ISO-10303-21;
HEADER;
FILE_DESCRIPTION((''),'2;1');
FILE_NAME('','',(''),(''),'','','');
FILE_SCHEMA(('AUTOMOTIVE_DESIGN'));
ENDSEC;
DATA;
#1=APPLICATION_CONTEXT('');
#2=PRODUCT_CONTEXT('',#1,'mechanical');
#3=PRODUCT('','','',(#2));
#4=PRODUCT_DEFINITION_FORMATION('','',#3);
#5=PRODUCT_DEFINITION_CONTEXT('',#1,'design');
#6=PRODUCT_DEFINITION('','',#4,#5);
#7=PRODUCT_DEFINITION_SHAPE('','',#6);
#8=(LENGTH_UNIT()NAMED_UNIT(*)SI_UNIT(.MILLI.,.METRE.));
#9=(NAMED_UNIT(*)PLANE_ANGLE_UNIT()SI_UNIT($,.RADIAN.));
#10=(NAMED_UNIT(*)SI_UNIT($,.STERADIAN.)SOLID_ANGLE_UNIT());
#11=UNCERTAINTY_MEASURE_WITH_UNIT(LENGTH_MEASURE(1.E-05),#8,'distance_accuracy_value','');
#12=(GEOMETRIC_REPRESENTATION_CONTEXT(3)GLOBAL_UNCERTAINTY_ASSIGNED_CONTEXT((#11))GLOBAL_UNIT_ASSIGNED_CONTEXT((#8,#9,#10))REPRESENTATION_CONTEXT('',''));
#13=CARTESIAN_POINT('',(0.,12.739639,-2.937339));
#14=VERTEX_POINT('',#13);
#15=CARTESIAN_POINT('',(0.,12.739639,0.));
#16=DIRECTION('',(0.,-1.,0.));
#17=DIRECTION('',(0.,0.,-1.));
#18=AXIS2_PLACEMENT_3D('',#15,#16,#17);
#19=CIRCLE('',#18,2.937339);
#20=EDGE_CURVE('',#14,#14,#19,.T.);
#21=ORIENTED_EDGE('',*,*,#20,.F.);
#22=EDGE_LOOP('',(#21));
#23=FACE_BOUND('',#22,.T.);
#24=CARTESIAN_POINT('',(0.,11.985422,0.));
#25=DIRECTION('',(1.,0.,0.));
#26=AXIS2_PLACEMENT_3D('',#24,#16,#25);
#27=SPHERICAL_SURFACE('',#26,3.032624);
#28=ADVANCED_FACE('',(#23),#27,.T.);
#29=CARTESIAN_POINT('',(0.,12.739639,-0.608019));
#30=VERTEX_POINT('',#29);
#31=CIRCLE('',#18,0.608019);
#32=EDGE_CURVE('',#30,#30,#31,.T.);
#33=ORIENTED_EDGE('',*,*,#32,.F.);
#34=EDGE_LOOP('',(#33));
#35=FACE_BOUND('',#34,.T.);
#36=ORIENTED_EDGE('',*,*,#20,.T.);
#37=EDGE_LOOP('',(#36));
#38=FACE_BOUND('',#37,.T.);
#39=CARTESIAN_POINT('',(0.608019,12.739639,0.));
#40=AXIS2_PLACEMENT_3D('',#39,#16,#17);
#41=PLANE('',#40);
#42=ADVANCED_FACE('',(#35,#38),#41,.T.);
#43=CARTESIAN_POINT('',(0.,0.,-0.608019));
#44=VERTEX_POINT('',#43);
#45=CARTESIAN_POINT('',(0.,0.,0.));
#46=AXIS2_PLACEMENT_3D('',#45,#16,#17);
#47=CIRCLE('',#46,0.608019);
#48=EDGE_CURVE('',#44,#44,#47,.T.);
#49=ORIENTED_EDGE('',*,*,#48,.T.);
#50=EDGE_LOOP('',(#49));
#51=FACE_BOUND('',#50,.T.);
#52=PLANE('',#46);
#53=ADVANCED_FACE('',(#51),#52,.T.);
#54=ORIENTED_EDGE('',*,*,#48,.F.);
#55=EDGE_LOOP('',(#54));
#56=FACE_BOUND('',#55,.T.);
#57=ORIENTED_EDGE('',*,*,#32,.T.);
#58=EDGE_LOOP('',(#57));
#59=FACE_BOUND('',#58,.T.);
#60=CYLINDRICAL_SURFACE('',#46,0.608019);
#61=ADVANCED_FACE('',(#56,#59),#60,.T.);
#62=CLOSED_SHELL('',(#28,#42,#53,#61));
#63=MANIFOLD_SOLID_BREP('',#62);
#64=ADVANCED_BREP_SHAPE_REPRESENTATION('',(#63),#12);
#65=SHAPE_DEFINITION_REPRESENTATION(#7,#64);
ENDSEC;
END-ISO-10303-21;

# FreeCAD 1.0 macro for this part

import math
import FreeCAD as App
import Part
import Sketcher
Q = App.Units.Quantity

doc = App.newDocument("Part")
body = doc.addObject("PartDesign::Body", "Body")

# Sketch on XY plane
sketch1 = body.newObject("Sketcher::SketchObject", "Sketch")
sketch1.AttachmentSupport = (doc.getObject("XY_Plane"), [""])
sketch1.MapMode = "FlatFace"
sketch1.addGeometry([
    Part.LineSegment(App.Vector(0, 0, 0), App.Vector(0.6, 0, 0)),  # 0
    Part.LineSegment(App.Vector(0.6, 0, 0), App.Vector(0.6, 12.7, 0)),  # 1
    Part.LineSegment(App.Vector(0.6, 12.7, 0), App.Vector(2.9, 12.7, 0)),  # 2
    Part.ArcOfCircle(Part.Circle(App.Vector(0, 12, 0), App.Vector(0, 0, 1), 3), math.radians(14), math.radians(90)),  # 3
    Part.LineSegment(App.Vector(0, 15, 0), App.Vector(0, 0, 0)),  # 4
], False)
sketch1.addConstraint([
    Sketcher.Constraint("Coincident", 0, 2, 1, 1),
    Sketcher.Constraint("Coincident", 1, 2, 2, 1),
    Sketcher.Constraint("Coincident", 2, 2, 3, 1),
    Sketcher.Constraint("Coincident", 3, 2, 4, 1),
    Sketcher.Constraint("Coincident", 4, 2, 0, 1),
    Sketcher.Constraint("Horizontal", 0),
    Sketcher.Constraint("Vertical", 1),
    Sketcher.Constraint("Horizontal", 2),
    Sketcher.Constraint("Vertical", 4),
    Sketcher.Constraint("Coincident", 4, 2, -1, 1),
    Sketcher.Constraint("PointOnObject", 3, 3, -2),
    Sketcher.Constraint("Radius", 3, Q("3.032624 mm")),
    Sketcher.Constraint("DistanceX", 0, 1, 0, 2, Q("0.608019 mm")),
    Sketcher.Constraint("DistanceX", 2, 1, 2, 2, Q("2.32932 mm")),
    Sketcher.Constraint("DistanceY", 1, 1, 1, 2, Q("12.739639 mm")),
])
revolution = body.newObject("PartDesign::Revolution", "Revolution")
revolution.Profile = sketch1
revolution.ReferenceAxis = (sketch1, ["V_Axis"])
revolution.Angle = 360

doc.recompute()
